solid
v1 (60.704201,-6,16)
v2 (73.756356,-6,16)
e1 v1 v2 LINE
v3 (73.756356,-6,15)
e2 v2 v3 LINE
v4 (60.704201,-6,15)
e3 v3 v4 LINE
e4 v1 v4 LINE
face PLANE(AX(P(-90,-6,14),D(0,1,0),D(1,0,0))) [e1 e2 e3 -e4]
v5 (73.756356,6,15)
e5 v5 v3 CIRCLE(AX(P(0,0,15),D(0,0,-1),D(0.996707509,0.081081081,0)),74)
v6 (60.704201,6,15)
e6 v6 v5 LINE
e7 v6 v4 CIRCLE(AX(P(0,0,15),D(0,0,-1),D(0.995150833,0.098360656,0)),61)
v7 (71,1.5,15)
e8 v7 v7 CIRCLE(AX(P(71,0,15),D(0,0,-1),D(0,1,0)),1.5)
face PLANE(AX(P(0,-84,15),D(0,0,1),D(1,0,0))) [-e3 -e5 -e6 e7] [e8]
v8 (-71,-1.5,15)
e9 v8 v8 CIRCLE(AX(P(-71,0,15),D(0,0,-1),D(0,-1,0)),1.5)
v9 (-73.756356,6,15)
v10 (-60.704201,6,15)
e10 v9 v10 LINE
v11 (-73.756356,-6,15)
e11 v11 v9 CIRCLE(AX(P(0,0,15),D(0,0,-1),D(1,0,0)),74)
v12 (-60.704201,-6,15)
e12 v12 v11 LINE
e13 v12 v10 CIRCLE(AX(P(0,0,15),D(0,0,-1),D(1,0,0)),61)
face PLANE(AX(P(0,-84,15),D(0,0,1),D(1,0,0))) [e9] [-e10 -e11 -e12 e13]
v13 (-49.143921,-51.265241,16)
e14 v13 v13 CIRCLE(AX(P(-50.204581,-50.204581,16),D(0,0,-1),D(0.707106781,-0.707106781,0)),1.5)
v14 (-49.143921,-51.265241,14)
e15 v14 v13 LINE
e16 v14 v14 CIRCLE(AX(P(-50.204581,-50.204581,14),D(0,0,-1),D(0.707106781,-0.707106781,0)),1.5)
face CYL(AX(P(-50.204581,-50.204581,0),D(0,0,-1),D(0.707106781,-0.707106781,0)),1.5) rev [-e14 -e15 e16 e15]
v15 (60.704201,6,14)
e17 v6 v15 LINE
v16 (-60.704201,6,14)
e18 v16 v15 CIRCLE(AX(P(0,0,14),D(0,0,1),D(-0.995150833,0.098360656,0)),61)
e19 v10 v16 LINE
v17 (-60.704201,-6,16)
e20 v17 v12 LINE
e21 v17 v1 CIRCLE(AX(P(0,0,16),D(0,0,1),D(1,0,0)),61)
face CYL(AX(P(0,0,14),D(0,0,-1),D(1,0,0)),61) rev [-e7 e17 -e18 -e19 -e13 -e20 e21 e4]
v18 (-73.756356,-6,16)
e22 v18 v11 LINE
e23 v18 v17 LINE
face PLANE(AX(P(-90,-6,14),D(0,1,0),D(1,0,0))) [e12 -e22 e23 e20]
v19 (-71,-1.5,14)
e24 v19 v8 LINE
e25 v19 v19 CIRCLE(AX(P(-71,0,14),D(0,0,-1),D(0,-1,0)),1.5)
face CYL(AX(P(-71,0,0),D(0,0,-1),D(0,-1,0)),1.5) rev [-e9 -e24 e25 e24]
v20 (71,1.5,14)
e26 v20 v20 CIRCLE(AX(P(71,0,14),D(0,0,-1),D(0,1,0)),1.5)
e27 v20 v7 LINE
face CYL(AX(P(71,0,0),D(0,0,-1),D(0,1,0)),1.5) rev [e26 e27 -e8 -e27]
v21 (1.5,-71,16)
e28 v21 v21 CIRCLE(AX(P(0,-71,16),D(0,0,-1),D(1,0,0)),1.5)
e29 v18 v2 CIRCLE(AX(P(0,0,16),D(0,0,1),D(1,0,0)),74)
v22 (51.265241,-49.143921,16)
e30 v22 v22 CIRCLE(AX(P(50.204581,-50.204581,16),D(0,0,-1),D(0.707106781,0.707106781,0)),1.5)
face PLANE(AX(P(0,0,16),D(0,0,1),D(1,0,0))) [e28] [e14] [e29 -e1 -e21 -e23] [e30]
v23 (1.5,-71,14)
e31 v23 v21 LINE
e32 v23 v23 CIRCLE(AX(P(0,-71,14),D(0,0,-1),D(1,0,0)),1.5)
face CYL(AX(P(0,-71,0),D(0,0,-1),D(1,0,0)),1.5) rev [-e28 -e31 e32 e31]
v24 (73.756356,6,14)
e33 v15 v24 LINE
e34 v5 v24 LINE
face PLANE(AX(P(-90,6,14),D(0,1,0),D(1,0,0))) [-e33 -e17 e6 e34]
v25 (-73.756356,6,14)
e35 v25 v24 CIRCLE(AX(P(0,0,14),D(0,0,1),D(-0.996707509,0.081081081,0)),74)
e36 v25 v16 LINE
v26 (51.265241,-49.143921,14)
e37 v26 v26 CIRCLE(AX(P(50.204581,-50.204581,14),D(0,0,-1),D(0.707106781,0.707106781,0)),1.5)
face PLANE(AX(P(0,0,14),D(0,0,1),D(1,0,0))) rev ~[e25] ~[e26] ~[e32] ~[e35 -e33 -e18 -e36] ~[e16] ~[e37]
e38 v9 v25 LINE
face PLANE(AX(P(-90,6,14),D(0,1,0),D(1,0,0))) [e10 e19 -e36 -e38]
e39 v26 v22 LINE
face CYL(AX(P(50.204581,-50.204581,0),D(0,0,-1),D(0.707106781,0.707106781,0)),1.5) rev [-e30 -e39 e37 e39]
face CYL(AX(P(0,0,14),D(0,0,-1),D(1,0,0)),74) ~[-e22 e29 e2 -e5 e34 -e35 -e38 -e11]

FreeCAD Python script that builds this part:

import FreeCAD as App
import Part
import Sketcher

V = App.Vector
Q = App.Units.Quantity

doc = App.newDocument("Part")
body = doc.addObject("PartDesign::Body", "Body")

# Sketch on XY plane
sketch1 = body.newObject("Sketcher::SketchObject", "Sketch")
sketch1.AttachmentSupport = (doc.getObject("XY_Plane"), [""])
sketch1.MapMode = "FlatFace"
sketch1.AttachmentOffset = App.Placement(V(0, 0, 14), App.Rotation())
sketch1.addGeometry([
    Part.LineSegment(V(-90, -6, 0), V(-90, -186, 0)),
    Part.LineSegment(V(-90, -186, 0), V(90, -186, 0)),
    Part.LineSegment(V(90, -186, 0), V(90, -6, 0)),
    Part.LineSegment(V(90, -6, 0), V(-90, -6, 0)),
], False)
sketch1.addConstraint([
    Sketcher.Constraint("Coincident", 0, 2, 1, 1),
    Sketcher.Constraint("Coincident", 1, 2, 2, 1),
    Sketcher.Constraint("Coincident", 2, 2, 3, 1),
    Sketcher.Constraint("Coincident", 3, 2, 0, 1),
    Sketcher.Constraint("Vertical", 0),
    Sketcher.Constraint("Horizontal", 1),
    Sketcher.Constraint("Vertical", 2),
    Sketcher.Constraint("Horizontal", 3),
    Sketcher.Constraint("Equal", 3, 0),
    Sketcher.Constraint("DistanceX", 1, 1, 1, 2, Q("180 mm")),
    Sketcher.Constraint("DistanceX", 0, 2, -1, 1, Q("90 mm")),
    Sketcher.Constraint("DistanceY", 0, 2, -1, 1, Q("186 mm")),
])
pad1 = body.newObject("PartDesign::Pad", "Pad")
pad1.Profile = sketch1
pad1.Length = 2
body2 = doc.addObject("PartDesign::Body", "Body001")

# Sketch on XY plane
sketch2 = body2.newObject("Sketcher::SketchObject", "Sketch001")
sketch2.AttachmentSupport = (doc.getObject("XY_Plane001"), [""])
sketch2.MapMode = "FlatFace"
sketch2.AttachmentOffset = App.Placement(V(0, 0, 14), App.Rotation())
sketch2.addGeometry([
    Part.LineSegment(V(-90, 6, 0), V(-90, -174, 0)),
    Part.LineSegment(V(-90, -174, 0), V(90, -174, 0)),
    Part.LineSegment(V(90, -174, 0), V(90, 6, 0)),
    Part.LineSegment(V(90, 6, 0), V(-90, 6, 0)),
], False)
sketch2.addConstraint([
    Sketcher.Constraint("Coincident", 0, 2, 1, 1),
    Sketcher.Constraint("Coincident", 1, 2, 2, 1),
    Sketcher.Constraint("Coincident", 2, 2, 3, 1),
    Sketcher.Constraint("Coincident", 3, 2, 0, 1),
    Sketcher.Constraint("Vertical", 0),
    Sketcher.Constraint("Horizontal", 1),
    Sketcher.Constraint("Vertical", 2),
    Sketcher.Constraint("Horizontal", 3),
    Sketcher.Constraint("Equal", 3, 0),
    Sketcher.Constraint("DistanceX", 1, 1, 1, 2, Q("180 mm")),
    Sketcher.Constraint("DistanceX", 0, 2, -1, 1, Q("90 mm")),
    Sketcher.Constraint("DistanceY", 0, 2, -1, 1, Q("174 mm")),
])
pad2 = body2.newObject("PartDesign::Pad", "Pad001")
pad2.Profile = sketch2
pad2.Length = 1
doc.recompute()

boolean = body2.newObject("PartDesign::Boolean", "Boolean")
boolean.Type = "Fuse"
boolean.addObjects([body])
body3 = doc.addObject("PartDesign::Body", "Body002")

# Sketch on XY plane
sketch3 = body3.newObject("Sketcher::SketchObject", "Sketch002")
sketch3.AttachmentSupport = (doc.getObject("XY_Plane002"), [""])
sketch3.MapMode = "FlatFace"
sketch3.addGeometry(Part.Circle(V(0, 0, 0), V(0, 0, 1), 1.5), False)
sketch3.addConstraint([
    Sketcher.Constraint("Coincident", 0, 3, -1, 1),
    Sketcher.Constraint("Diameter", 0, Q("3 mm")),
])
pad3 = body3.newObject("PartDesign::Pad", "Pad002")
pad3.Profile = sketch3
pad3.Length = 60
body4 = doc.addObject("PartDesign::Body", "Body003")
doc.recompute()

body3.Placement = App.Placement(V(50.204581, -50.204581, 0), App.Rotation(V(0, 0, 1), 45))
boolean2 = body4.newObject("PartDesign::Boolean", "Boolean001")
boolean2.Type = "Fuse"
boolean2.addObjects([body3])
body5 = doc.addObject("PartDesign::Body", "Body004")

# Sketch on XY plane
sketch4 = body5.newObject("Sketcher::SketchObject", "Sketch003")
sketch4.AttachmentSupport = (doc.getObject("XY_Plane004"), [""])
sketch4.MapMode = "FlatFace"
sketch4.addGeometry(Part.Circle(V(71, 0, 0), V(0, 0, 1), 1.5), False)
sketch4.addConstraint([
    Sketcher.Constraint("PointOnObject", 0, 3, -1),
    Sketcher.Constraint("Diameter", 0, Q("3 mm")),
    Sketcher.Constraint("DistanceX", -1, 1, 0, 3, Q("71 mm")),
])
pad4 = body5.newObject("PartDesign::Pad", "Pad003")
pad4.Profile = sketch4
pad4.Length = 60
body6 = doc.addObject("PartDesign::Body", "Body005")

# Sketch on XY plane
sketch5 = body6.newObject("Sketcher::SketchObject", "Sketch004")
sketch5.AttachmentSupport = (doc.getObject("XY_Plane005"), [""])
sketch5.MapMode = "FlatFace"
sketch5.addGeometry(Part.Circle(V(0, 0, 0), V(0, 0, 1), 1.5), False)
sketch5.addConstraint([
    Sketcher.Constraint("Coincident", 0, 3, -1, 1),
    Sketcher.Constraint("Diameter", 0, Q("3 mm")),
])
pad5 = body6.newObject("PartDesign::Pad", "Pad004")
pad5.Profile = sketch5
pad5.Length = 60
body7 = doc.addObject("PartDesign::Body", "Body006")
doc.recompute()

body6.Placement = App.Placement(V(50.204581, 50.204581, 0), App.Rotation(V(0, 0, 1), 135))
boolean3 = body7.newObject("PartDesign::Boolean", "Boolean002")
boolean3.Type = "Fuse"
boolean3.addObjects([body6])
body8 = doc.addObject("PartDesign::Body", "Body007")

# Sketch on XY plane
sketch6 = body8.newObject("Sketcher::SketchObject", "Sketch005")
sketch6.AttachmentSupport = (doc.getObject("XY_Plane007"), [""])
sketch6.MapMode = "FlatFace"
sketch6.addGeometry(Part.Circle(V(0, 0, 0), V(0, 0, 1), 1.5), False)
sketch6.addConstraint([
    Sketcher.Constraint("Coincident", 0, 3, -1, 1),
    Sketcher.Constraint("Diameter", 0, Q("3 mm")),
])
pad6 = body8.newObject("PartDesign::Pad", "Pad005")
pad6.Profile = sketch6
pad6.Length = 60
body9 = doc.addObject("PartDesign::Body", "Body008")
doc.recompute()

body8.Placement = App.Placement(V(-50.204581, 50.204581, 0), App.Rotation(V(0, 0, 1), 225))
boolean4 = body9.newObject("PartDesign::Boolean", "Boolean003")
boolean4.Type = "Fuse"
boolean4.addObjects([body8])
body10 = doc.addObject("PartDesign::Body", "Body009")

# Sketch on XY plane
sketch7 = body10.newObject("Sketcher::SketchObject", "Sketch006")
sketch7.AttachmentSupport = (doc.getObject("XY_Plane009"), [""])
sketch7.MapMode = "FlatFace"
sketch7.addGeometry(Part.Circle(V(-71, 0, 0), V(0, 0, 1), 1.5), False)
sketch7.addConstraint([
    Sketcher.Constraint("PointOnObject", 0, 3, -1),
    Sketcher.Constraint("Diameter", 0, Q("3 mm")),
    Sketcher.Constraint("DistanceX", 0, 3, -1, 1, Q("71 mm")),
])
pad7 = body10.newObject("PartDesign::Pad", "Pad006")
pad7.Profile = sketch7
pad7.Length = 60
body11 = doc.addObject("PartDesign::Body", "Body010")

# Sketch on XY plane
sketch8 = body11.newObject("Sketcher::SketchObject", "Sketch007")
sketch8.AttachmentSupport = (doc.getObject("XY_Plane010"), [""])
sketch8.MapMode = "FlatFace"
sketch8.addGeometry(Part.Circle(V(0, 0, 0), V(0, 0, 1), 1.5), False)
sketch8.addConstraint([
    Sketcher.Constraint("Coincident", 0, 3, -1, 1),
    Sketcher.Constraint("Diameter", 0, Q("3 mm")),
])
pad8 = body11.newObject("PartDesign::Pad", "Pad007")
pad8.Profile = sketch8
pad8.Length = 60
body12 = doc.addObject("PartDesign::Body", "Body011")
doc.recompute()

body11.Placement = App.Placement(V(-50.204581, -50.204581, 0), App.Rotation(V(0, 0, -1), 45))
boolean5 = body12.newObject("PartDesign::Boolean", "Boolean004")
boolean5.Type = "Fuse"
boolean5.addObjects([body11])
body13 = doc.addObject("PartDesign::Body", "Body012")
body13.AllowCompound = True

# Sketch on XY plane
sketch9 = body13.newObject("Sketcher::SketchObject", "Sketch008")
sketch9.AttachmentSupport = (doc.getObject("XY_Plane012"), [""])
sketch9.MapMode = "FlatFace"
sketch9.addGeometry(Part.Circle(V(0, -71, 0), V(0, 0, 1), 1.5), False)
sketch9.addConstraint([
    Sketcher.Constraint("PointOnObject", 0, 3, -2),
    Sketcher.Constraint("Diameter", 0, Q("3 mm")),
    Sketcher.Constraint("DistanceY", 0, 3, -1, 1, Q("71 mm")),
])
pad9 = body13.newObject("PartDesign::Pad", "Pad008")
pad9.Profile = sketch9
pad9.Length = 60
doc.recompute()

boolean6 = body13.newObject("PartDesign::Boolean", "Boolean005")
boolean6.Type = "Fuse"
boolean6.addObjects([body4])
doc.recompute()

boolean7 = body13.newObject("PartDesign::Boolean", "Boolean006")
boolean7.Type = "Fuse"
boolean7.addObjects([body5])
doc.recompute()

boolean8 = body13.newObject("PartDesign::Boolean", "Boolean007")
boolean8.Type = "Fuse"
boolean8.addObjects([body7])
doc.recompute()

boolean9 = body13.newObject("PartDesign::Boolean", "Boolean008")
boolean9.Type = "Fuse"
boolean9.addObjects([body9])
doc.recompute()

boolean10 = body13.newObject("PartDesign::Boolean", "Boolean009")
boolean10.Type = "Fuse"
boolean10.addObjects([body10])
doc.recompute()

boolean11 = body13.newObject("PartDesign::Boolean", "Boolean010")
boolean11.Type = "Fuse"
boolean11.addObjects([body12])
body14 = doc.addObject("PartDesign::Body", "Body013")

# Sketch on XY plane
sketch10 = body14.newObject("Sketcher::SketchObject", "Sketch009")
sketch10.AttachmentSupport = (doc.getObject("XY_Plane013"), [""])
sketch10.MapMode = "FlatFace"
sketch10.AttachmentOffset = App.Placement(V(0, 0, 14), App.Rotation())
sketch10.addGeometry([
    Part.Circle(V(0, 0, 0), V(0, 0, 1), 74),
    Part.Circle(V(0, 0, 0), V(0, 0, 1), 61),
], False)
sketch10.addConstraint([
    Sketcher.Constraint("Coincident", 0, 3, -1, 1),
    Sketcher.Constraint("Coincident", 1, 3, -1, 1),
    Sketcher.Constraint("Diameter", 0, Q("148 mm")),
    Sketcher.Constraint("Diameter", 1, Q("122 mm")),
])
pad10 = body14.newObject("PartDesign::Pad", "Pad009")
pad10.Profile = sketch10
pad10.Length = 2
doc.recompute()

boolean12 = body14.newObject("PartDesign::Boolean", "Boolean011")
boolean12.Type = "Cut"
boolean12.addObjects([body13])
doc.recompute()

boolean13 = body14.newObject("PartDesign::Boolean", "Boolean012")
boolean13.Type = "Common"
boolean13.addObjects([body2])

doc.recompute()
